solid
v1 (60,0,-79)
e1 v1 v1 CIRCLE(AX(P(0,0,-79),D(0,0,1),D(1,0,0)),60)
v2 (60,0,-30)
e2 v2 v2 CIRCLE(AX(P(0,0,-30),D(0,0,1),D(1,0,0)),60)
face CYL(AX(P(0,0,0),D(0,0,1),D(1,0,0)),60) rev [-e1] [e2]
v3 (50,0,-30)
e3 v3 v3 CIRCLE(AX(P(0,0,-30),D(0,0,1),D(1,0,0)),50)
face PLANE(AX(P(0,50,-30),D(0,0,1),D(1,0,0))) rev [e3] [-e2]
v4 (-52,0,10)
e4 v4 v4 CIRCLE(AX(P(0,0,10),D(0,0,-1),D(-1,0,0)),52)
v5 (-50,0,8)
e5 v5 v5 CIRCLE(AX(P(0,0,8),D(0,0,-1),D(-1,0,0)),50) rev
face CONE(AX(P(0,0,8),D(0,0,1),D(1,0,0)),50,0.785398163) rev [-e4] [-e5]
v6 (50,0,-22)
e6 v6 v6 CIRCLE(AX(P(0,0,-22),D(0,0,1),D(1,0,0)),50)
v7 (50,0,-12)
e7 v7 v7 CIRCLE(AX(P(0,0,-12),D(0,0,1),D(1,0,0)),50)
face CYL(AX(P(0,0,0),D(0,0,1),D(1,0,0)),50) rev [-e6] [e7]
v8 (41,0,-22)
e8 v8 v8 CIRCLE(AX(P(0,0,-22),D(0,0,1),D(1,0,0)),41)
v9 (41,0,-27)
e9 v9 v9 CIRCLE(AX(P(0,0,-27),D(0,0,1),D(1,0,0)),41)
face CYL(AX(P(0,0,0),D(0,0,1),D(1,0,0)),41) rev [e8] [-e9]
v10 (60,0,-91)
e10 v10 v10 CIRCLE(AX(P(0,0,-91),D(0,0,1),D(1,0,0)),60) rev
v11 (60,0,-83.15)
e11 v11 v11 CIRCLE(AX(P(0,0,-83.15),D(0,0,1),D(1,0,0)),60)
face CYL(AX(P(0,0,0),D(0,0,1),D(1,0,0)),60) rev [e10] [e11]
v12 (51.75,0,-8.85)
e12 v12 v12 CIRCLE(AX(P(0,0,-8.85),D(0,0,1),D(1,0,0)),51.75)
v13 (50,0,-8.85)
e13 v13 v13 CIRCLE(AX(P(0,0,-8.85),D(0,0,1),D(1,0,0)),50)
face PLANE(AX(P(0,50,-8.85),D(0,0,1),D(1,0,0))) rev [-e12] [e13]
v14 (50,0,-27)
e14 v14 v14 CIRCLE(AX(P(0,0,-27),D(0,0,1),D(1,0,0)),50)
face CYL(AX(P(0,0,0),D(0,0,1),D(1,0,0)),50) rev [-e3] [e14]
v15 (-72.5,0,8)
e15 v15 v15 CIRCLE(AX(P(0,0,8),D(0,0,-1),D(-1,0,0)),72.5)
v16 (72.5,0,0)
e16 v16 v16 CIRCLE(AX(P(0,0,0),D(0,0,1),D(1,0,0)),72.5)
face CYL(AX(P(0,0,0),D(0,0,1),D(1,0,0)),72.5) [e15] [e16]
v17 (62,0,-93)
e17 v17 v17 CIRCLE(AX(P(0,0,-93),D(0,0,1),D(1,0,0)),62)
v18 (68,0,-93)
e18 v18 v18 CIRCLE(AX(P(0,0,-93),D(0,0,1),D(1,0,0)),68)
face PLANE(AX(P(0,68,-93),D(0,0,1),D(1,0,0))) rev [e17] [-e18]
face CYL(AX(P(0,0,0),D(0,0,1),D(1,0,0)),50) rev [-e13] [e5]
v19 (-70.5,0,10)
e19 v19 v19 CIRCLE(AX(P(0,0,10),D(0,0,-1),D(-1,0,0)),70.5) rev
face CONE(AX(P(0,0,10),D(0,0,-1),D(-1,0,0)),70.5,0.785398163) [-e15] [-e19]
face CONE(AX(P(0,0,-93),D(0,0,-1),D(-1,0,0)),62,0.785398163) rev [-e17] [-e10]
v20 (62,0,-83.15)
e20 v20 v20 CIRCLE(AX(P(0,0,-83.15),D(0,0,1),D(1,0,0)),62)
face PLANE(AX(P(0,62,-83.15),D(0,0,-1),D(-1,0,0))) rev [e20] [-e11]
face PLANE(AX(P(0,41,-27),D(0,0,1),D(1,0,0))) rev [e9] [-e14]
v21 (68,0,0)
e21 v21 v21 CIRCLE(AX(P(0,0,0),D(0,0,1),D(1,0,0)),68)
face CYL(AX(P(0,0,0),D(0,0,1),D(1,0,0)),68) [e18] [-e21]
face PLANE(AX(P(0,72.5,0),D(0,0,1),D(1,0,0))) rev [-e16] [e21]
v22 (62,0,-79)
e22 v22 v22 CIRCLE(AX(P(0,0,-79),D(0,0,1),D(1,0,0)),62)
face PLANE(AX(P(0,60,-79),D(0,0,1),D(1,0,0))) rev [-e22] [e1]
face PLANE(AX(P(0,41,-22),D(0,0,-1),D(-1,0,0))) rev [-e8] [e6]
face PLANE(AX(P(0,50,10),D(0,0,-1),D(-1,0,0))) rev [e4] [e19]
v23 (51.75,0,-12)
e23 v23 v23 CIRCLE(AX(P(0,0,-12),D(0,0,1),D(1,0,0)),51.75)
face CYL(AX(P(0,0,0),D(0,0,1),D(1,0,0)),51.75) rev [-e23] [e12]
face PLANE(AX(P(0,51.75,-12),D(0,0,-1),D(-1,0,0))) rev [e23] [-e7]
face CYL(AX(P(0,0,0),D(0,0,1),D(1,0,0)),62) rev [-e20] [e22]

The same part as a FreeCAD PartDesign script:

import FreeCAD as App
import Part
import Sketcher


def edges_at(feature, points):
    """Names of the edges that pass closest to the given points."""
    edges = feature.Shape.Edges
    near = lambda p: min(range(len(edges)), key=lambda i: edges[i].distToShape(Part.Vertex(*p))[0])
    return sorted({f"Edge{near(p) + 1}" for p in points})


def add_polygon(sketch, points):
    """Adds a closed chain of lines whose ends are joined by coincident constraints."""
    first, n = sketch.GeometryCount, len(points)
    for a, b in zip(points, points[1:] + points[:1]):
        sketch.addGeometry(Part.LineSegment(App.Vector(*a, 0), App.Vector(*b, 0)), False)
    for i in range(n):
        sketch.addConstraint(Sketcher.Constraint("Coincident", first + i, 2, first + (i + 1) % n, 1))

doc = App.newDocument("Part")
body = doc.addObject("PartDesign::Body", "Body")

# Sketch on YZ plane
sketch1 = doc.addObject("Sketcher::SketchObject", "Sketch")
body.addObject(sketch1)
sketch1.AttachmentSupport = (doc.YZ_Plane, [""])
sketch1.MapMode = "FlatFace"
add_polygon(sketch1, [(50, 10), (50, -8.8), (51.8, -8.8), (51.8, -12), (50, -12), (50, -22), (41, -22), (41, -27), (50, -27), (50, -30), (60, -30), (60, -79), (62, -79), (62, -83.2), (60, -83.2), (60, -93), (68, -93), (68, 0), (72.5, 0), (72.5, 10)])  # lines 0-19
sketch1.addConstraint(Sketcher.Constraint("Vertical", 0))
sketch1.addConstraint(Sketcher.Constraint("Horizontal", 1))
sketch1.addConstraint(Sketcher.Constraint("Vertical", 2))
sketch1.addConstraint(Sketcher.Constraint("Horizontal", 3))
sketch1.addConstraint(Sketcher.Constraint("Vertical", 4))
sketch1.addConstraint(Sketcher.Constraint("Horizontal", 5))
sketch1.addConstraint(Sketcher.Constraint("Vertical", 6))
sketch1.addConstraint(Sketcher.Constraint("Horizontal", 7))
sketch1.addConstraint(Sketcher.Constraint("Vertical", 8))
sketch1.addConstraint(Sketcher.Constraint("Horizontal", 9))
sketch1.addConstraint(Sketcher.Constraint("Vertical", 10))
sketch1.addConstraint(Sketcher.Constraint("Horizontal", 11))
sketch1.addConstraint(Sketcher.Constraint("Vertical", 12))
sketch1.addConstraint(Sketcher.Constraint("Horizontal", 13))
sketch1.addConstraint(Sketcher.Constraint("Vertical", 14))
sketch1.addConstraint(Sketcher.Constraint("Horizontal", 15))
sketch1.addConstraint(Sketcher.Constraint("Vertical", 16))
sketch1.addConstraint(Sketcher.Constraint("Horizontal", 17))
sketch1.addConstraint(Sketcher.Constraint("Vertical", 18))
sketch1.addConstraint(Sketcher.Constraint("Horizontal", 19))
sketch1.addConstraint(Sketcher.Constraint("PointOnObject", 16, 2, -1))
sketch1.addConstraint(Sketcher.Constraint("Vertical", 0, 2, 3, 2))
sketch1.addConstraint(Sketcher.Constraint("Vertical", 4, 2, 7, 2))
sketch1.addConstraint(Sketcher.Constraint("Vertical", 10, 2, 13, 2))
sketch1.addConstraint(Sketcher.Constraint("Equal", 9, 4))
sketch1.addConstraint(Sketcher.Constraint("Equal", 4, 18))
sketch1.addConstraint(Sketcher.Constraint("DistanceX", 5, 2, 5, 1, 9.0))
sketch1.addConstraint(Sketcher.Constraint("DistanceX", 9, 1, 9, 2, 10.0))
sketch1.addConstraint(Sketcher.Constraint("DistanceX", 11, 1, 11, 2, 2.0))
sketch1.addConstraint(Sketcher.Constraint("DistanceX", 15, 1, 15, 2, 8.0))
sketch1.addConstraint(Sketcher.Constraint("DistanceY", 6, 2, 6, 1, 5.0))
sketch1.addConstraint(Sketcher.Constraint("DistanceY", 8, 2, 8, 1, 3.0))
sketch1.addConstraint(Sketcher.Constraint("DistanceY", 10, 2, 10, 1, 49.0))
sketch1.addConstraint(Sketcher.Constraint("DistanceY", 16, 1, 16, 2, 93.0))
sketch1.addConstraint(Sketcher.Constraint("DistanceX", 17, 1, 17, 2, 4.5))
sketch1.addConstraint(Sketcher.Constraint("DistanceX", -1, 1, 0, 2, 50.0))
sketch1.addConstraint(Sketcher.Constraint("DistanceY", 2, 2, -1, 1, 12.0))
sketch1.addConstraint(Sketcher.Constraint("DistanceX", 1, 1, 1, 2, 1.75))
sketch1.addConstraint(Sketcher.Constraint("DistanceY", 0, 2, 0, 1, 18.85))
sketch1.addConstraint(Sketcher.Constraint("DistanceY", 12, 2, 12, 1, 4.15))
revolution = doc.addObject("PartDesign::Revolution", "Revolution")
body.addObject(revolution)
revolution.Profile = sketch1
revolution.ReferenceAxis = (sketch1, ["V_Axis"])
revolution.Angle = 360
doc.recompute()

chamfer = doc.addObject("PartDesign::Chamfer", "Chamfer")
body.addObject(chamfer)
chamfer.Base = (revolution, edges_at(revolution, [(-60, 0, -93), (-50, 0, 10), (-72.5, 0, 10)]))
chamfer.Size = 2

doc.recompute()
